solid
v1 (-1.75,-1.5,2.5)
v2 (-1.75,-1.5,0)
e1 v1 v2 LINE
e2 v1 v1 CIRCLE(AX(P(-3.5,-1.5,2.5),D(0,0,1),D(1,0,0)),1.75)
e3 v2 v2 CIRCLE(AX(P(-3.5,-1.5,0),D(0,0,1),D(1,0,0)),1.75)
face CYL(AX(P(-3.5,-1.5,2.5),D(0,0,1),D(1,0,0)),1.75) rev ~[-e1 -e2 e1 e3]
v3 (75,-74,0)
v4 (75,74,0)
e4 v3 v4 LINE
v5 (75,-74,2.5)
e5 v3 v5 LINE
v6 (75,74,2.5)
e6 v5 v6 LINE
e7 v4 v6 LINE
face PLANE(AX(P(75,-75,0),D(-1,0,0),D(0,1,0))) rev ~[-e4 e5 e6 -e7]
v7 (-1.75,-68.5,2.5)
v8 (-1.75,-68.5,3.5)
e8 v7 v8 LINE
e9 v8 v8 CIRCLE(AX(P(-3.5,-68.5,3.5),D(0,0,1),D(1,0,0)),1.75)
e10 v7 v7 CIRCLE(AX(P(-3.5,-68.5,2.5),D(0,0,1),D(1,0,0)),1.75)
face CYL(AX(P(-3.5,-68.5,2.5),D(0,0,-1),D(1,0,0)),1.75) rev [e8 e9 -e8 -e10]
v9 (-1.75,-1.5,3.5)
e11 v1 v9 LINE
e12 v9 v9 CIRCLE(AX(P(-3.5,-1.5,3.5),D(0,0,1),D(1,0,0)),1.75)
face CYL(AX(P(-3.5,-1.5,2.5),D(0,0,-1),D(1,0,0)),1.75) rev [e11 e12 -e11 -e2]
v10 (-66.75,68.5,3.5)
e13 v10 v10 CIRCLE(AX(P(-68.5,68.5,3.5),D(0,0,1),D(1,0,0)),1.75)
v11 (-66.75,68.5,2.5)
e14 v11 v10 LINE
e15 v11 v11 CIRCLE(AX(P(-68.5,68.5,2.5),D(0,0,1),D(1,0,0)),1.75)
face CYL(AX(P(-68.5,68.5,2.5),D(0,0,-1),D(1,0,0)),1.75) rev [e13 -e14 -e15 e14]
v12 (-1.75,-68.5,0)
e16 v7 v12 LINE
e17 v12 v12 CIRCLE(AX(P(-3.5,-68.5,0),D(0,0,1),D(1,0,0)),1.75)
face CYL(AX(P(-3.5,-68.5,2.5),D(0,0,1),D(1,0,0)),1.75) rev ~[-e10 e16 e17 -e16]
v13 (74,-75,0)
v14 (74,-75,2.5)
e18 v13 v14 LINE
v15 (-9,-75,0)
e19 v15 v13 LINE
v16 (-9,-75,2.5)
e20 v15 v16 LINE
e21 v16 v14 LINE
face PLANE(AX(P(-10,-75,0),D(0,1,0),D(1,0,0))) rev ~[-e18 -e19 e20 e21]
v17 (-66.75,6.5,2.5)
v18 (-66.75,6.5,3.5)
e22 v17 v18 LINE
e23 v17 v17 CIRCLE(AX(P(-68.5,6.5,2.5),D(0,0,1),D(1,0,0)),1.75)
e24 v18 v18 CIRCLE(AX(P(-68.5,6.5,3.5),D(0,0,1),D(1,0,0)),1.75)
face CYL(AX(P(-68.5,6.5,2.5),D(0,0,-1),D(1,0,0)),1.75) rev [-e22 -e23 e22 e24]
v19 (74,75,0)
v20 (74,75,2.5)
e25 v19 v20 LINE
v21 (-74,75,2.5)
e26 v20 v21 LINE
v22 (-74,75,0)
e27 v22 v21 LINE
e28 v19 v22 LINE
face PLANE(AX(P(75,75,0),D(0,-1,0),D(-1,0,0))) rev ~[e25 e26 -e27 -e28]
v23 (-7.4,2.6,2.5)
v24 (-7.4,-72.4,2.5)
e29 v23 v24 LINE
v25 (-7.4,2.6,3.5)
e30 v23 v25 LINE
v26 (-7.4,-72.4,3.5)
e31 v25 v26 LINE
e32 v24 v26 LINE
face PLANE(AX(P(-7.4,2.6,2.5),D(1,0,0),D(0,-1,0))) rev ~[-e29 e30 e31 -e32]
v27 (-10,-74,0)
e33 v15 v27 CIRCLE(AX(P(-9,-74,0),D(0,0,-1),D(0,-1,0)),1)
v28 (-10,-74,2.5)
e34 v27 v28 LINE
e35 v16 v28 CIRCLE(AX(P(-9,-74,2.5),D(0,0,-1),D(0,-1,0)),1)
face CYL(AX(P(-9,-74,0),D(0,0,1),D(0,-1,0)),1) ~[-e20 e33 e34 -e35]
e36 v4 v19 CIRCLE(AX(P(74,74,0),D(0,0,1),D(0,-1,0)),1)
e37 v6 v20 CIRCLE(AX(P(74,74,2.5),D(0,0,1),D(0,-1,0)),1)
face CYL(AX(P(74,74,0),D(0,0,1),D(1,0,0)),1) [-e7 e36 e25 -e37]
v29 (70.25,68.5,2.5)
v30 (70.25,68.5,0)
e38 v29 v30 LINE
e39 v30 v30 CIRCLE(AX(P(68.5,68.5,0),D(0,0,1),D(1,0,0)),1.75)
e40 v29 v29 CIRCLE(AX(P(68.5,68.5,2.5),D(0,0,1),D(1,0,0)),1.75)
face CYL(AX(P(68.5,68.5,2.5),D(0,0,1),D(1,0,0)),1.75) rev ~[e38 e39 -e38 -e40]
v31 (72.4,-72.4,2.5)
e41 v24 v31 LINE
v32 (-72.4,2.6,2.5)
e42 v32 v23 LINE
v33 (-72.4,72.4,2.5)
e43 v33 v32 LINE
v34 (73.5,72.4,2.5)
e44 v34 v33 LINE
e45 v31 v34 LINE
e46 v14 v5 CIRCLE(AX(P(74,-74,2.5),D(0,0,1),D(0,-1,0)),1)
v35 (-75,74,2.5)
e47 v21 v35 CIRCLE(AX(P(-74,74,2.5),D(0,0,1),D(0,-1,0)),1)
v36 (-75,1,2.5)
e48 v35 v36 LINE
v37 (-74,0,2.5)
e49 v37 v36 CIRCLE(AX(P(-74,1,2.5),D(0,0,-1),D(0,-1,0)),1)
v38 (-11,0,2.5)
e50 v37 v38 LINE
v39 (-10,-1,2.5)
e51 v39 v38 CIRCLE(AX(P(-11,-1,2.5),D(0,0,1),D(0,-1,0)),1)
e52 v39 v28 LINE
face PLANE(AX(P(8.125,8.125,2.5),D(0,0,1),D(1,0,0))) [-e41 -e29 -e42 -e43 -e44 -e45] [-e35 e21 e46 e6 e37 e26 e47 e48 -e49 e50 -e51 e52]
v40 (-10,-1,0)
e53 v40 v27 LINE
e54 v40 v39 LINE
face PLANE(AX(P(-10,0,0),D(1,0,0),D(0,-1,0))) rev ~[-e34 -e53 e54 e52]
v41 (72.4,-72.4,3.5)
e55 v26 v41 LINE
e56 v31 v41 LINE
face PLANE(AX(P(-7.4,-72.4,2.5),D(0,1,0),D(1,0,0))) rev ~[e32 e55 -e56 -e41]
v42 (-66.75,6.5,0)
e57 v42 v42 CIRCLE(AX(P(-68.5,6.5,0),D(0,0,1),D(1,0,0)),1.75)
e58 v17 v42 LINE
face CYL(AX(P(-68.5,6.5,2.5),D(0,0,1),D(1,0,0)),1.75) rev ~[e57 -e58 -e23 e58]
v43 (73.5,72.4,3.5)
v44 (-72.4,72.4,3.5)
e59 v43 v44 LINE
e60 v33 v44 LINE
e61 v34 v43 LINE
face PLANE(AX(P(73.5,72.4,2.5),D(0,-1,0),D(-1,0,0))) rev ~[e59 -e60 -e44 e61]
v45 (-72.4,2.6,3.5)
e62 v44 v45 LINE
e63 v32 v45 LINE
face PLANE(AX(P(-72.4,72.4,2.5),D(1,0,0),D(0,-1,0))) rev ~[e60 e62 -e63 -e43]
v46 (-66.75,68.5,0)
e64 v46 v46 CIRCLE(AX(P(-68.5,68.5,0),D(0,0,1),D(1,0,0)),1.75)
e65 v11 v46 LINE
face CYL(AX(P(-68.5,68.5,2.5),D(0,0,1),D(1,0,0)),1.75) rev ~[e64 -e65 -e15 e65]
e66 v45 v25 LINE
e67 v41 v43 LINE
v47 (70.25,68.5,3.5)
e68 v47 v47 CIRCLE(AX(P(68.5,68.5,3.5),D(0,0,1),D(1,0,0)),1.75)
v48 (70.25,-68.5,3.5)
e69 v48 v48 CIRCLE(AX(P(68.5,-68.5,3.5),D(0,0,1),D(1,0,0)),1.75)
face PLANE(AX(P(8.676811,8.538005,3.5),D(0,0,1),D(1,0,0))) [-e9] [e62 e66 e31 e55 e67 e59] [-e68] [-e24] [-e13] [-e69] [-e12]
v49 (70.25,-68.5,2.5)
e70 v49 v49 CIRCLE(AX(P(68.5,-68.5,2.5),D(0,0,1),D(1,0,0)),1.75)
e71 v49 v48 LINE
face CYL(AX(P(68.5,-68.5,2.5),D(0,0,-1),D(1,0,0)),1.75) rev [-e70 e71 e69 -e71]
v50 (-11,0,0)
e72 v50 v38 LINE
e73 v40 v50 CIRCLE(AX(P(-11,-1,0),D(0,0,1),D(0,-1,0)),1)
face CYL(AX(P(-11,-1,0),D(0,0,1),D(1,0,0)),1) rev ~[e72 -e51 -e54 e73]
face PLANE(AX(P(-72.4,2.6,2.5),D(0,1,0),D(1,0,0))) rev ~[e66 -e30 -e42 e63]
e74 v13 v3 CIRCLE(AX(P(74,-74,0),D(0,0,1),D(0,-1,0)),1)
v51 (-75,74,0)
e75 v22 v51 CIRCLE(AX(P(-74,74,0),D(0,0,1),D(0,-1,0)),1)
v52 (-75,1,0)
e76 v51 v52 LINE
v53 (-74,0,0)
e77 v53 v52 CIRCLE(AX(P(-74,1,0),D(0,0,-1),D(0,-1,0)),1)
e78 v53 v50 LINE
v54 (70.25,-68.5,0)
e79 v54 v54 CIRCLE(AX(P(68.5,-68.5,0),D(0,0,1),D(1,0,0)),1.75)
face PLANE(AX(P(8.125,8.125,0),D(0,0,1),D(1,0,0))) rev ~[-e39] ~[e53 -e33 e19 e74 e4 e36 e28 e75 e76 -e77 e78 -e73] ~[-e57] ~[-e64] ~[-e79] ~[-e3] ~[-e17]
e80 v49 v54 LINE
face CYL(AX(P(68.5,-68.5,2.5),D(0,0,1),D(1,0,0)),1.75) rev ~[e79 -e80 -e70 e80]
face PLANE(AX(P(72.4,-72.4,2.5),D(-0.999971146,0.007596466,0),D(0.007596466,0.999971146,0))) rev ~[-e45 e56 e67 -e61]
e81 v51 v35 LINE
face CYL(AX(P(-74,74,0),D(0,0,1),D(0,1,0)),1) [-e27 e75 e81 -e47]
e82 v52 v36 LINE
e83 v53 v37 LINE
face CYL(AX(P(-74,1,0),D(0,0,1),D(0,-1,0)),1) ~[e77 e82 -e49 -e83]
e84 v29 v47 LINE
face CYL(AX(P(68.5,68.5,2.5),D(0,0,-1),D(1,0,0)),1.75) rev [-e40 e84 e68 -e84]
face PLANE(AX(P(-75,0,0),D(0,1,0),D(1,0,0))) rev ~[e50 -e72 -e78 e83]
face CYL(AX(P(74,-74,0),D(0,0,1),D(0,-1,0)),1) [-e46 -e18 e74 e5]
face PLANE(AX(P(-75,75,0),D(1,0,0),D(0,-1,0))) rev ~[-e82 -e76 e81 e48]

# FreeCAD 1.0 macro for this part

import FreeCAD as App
import Part
import Sketcher
from FreeCAD import Vector
Q = App.Units.Quantity


def edges_at(feature, points):
    """Names of the edges that pass closest to the given points."""
    edges = feature.Shape.Edges
    near = lambda p: min(range(len(edges)), key=lambda i: edges[i].distToShape(Part.Vertex(*p))[0])
    return sorted({f"Edge{near(p) + 1}" for p in points})

doc = App.newDocument("Part")
body = doc.addObject("PartDesign::Body", "Body")

# Sketch on XY plane
sketch1 = doc.addObject("Sketcher::SketchObject", "Sketch")
body.addObject(sketch1)
sketch1.AttachmentSupport = (doc.XY_Plane, [""])
sketch1.MapMode = "FlatFace"
sketch1.addGeometry(Part.LineSegment(Vector(-10, -75, 0), Vector(75, -75, 0)), False)
sketch1.addGeometry(Part.LineSegment(Vector(75, -75, 0), Vector(75, 75, 0)), False)
sketch1.addGeometry(Part.LineSegment(Vector(75, 75, 0), Vector(-75, 75, 0)), False)
sketch1.addGeometry(Part.LineSegment(Vector(-75, 75, 0), Vector(-75, 0, 0)), False)
sketch1.addGeometry(Part.LineSegment(Vector(-75, 0, 0), Vector(-10, 0, 0)), False)
sketch1.addGeometry(Part.LineSegment(Vector(-10, 0, 0), Vector(-10, -75, 0)), False)
sketch1.addConstraint(Sketcher.Constraint("Coincident", 0, 2, 1, 1))
sketch1.addConstraint(Sketcher.Constraint("Coincident", 1, 2, 2, 1))
sketch1.addConstraint(Sketcher.Constraint("Coincident", 2, 2, 3, 1))
sketch1.addConstraint(Sketcher.Constraint("Coincident", 3, 2, 4, 1))
sketch1.addConstraint(Sketcher.Constraint("Coincident", 4, 2, 5, 1))
sketch1.addConstraint(Sketcher.Constraint("Coincident", 5, 2, 0, 1))
sketch1.addConstraint(Sketcher.Constraint("Horizontal", 0))
sketch1.addConstraint(Sketcher.Constraint("Vertical", 1))
sketch1.addConstraint(Sketcher.Constraint("Horizontal", 2))
sketch1.addConstraint(Sketcher.Constraint("Vertical", 3))
sketch1.addConstraint(Sketcher.Constraint("Horizontal", 4))
sketch1.addConstraint(Sketcher.Constraint("Vertical", 5))
sketch1.addConstraint(Sketcher.Constraint("Symmetric", 0, 2, 2, 2, -1, 1))
sketch1.addConstraint(Sketcher.Constraint("PointOnObject", 3, 2, -1))
sketch1.addConstraint(Sketcher.Constraint("Equal", 2, 1))
sketch1.addConstraint(Sketcher.Constraint("DistanceX", 0, 1, 0, 2, Q("85 mm")))
sketch1.addConstraint(Sketcher.Constraint("DistanceX", 2, 2, 2, 1, Q("150 mm")))
pad1 = doc.addObject("PartDesign::Pad", "Pad")
body.addObject(pad1)
pad1.Profile = sketch1
pad1.Length = 2.5

# Sketch on XY plane
sketch2 = doc.addObject("Sketcher::SketchObject", "Sketch001")
body.addObject(sketch2)
sketch2.AttachmentSupport = (doc.XY_Plane, [""])
sketch2.MapMode = "FlatFace"
sketch2.AttachmentOffset = App.Placement(Vector(0, 0, 2.5), App.Rotation())
sketch2.addGeometry(Part.Circle(Vector(-68.5, 68.5, 0), Vector(0, 0, 1), 1.8), False)
sketch2.addGeometry(Part.Circle(Vector(68.5, 68.5, 0), Vector(0, 0, 1), 1.8), False)
sketch2.addGeometry(Part.Circle(Vector(68.5, -68.5, 0), Vector(0, 0, 1), 1.8), False)
sketch2.addGeometry(Part.Circle(Vector(-3.5, -68.5, 0), Vector(0, 0, 1), 1.8), False)
sketch2.addGeometry(Part.Circle(Vector(-68.5, 6.5, 0), Vector(0, 0, 1), 1.8), False)
sketch2.addGeometry(Part.Circle(Vector(-3.5, -1.5, 0), Vector(0, 0, 1), 1.8), False)
sketch2.addConstraint(Sketcher.Constraint("Equal", 0, 1))
sketch2.addConstraint(Sketcher.Constraint("Equal", 1, 2))
sketch2.addConstraint(Sketcher.Constraint("Equal", 2, 3))
sketch2.addConstraint(Sketcher.Constraint("Equal", 3, 4))
sketch2.addConstraint(Sketcher.Constraint("Equal", 4, 5))
sketch2.addConstraint(Sketcher.Constraint("Symmetric", 0, 3, 2, 3, -1, 1))
sketch2.addConstraint(Sketcher.Constraint("Symmetric", 0, 3, 1, 3, -2))
sketch2.addConstraint(Sketcher.Constraint("Horizontal", 2, 3, 3, 3))
sketch2.addConstraint(Sketcher.Constraint("Vertical", 0, 3, 4, 3))
sketch2.addConstraint(Sketcher.Constraint("Vertical", 3, 3, 5, 3))
sketch2.addConstraint(Sketcher.Constraint("Diameter", 0, Q("3.5 mm")))
sketch2.addConstraint(Sketcher.Constraint("DistanceX", 0, 3, 1, 3, Q("137 mm")))
sketch2.addConstraint(Sketcher.Constraint("DistanceY", 2, 3, 1, 3, Q("137 mm")))
sketch2.addConstraint(Sketcher.Constraint("DistanceX", 3, 3, 2, 3, Q("72 mm")))
sketch2.addConstraint(Sketcher.Constraint("DistanceY", 4, 3, 0, 3, Q("62 mm")))
sketch2.addConstraint(Sketcher.Constraint("DistanceY", 5, 3, 4, 3, Q("8 mm")))
pocket1 = doc.addObject("PartDesign::Pocket", "Pocket")
body.addObject(pocket1)
pocket1.Profile = sketch2
pocket1.Length = 3.5

# Sketch on XY plane
sketch3 = doc.addObject("Sketcher::SketchObject", "Sketch002")
body.addObject(sketch3)
sketch3.AttachmentSupport = (doc.XY_Plane, [""])
sketch3.MapMode = "FlatFace"
sketch3.AttachmentOffset = App.Placement(Vector(0, 0, 2.5), App.Rotation())
sketch3.addGeometry(Part.LineSegment(Vector(73.5, 72.4, 0), Vector(-72.4, 72.4, 0)), False)
sketch3.addGeometry(Part.LineSegment(Vector(-72.4, 72.4, 0), Vector(-72.4, 2.6, 0)), False)
sketch3.addGeometry(Part.LineSegment(Vector(-72.4, 2.6, 0), Vector(-7.4, 2.6, 0)), False)
sketch3.addGeometry(Part.LineSegment(Vector(-7.4, 2.6, 0), Vector(-7.4, -72.4, 0)), False)
sketch3.addGeometry(Part.LineSegment(Vector(-7.4, -72.4, 0), Vector(72.4, -72.4, 0)), False)
sketch3.addGeometry(Part.LineSegment(Vector(72.4, -72.4, 0), Vector(73.5, 72.4, 0)), False)
sketch3.addGeometry(Part.Circle(Vector(-3.5, -68.5, 0), Vector(0, 0, 1), 1.8), False)
sketch3.addGeometry(Part.Circle(Vector(-3.5, -1.5, 0), Vector(0, 0, 1), 1.8), False)
sketch3.addGeometry(Part.Circle(Vector(68.5, -68.5, 0), Vector(0, 0, 1), 1.8), False)
sketch3.addGeometry(Part.Circle(Vector(-68.5, 6.5, 0), Vector(0, 0, 1), 1.8), False)
sketch3.addGeometry(Part.Circle(Vector(-68.5, 68.5, 0), Vector(0, 0, 1), 1.8), False)
sketch3.addGeometry(Part.Circle(Vector(68.5, 68.5, 0), Vector(0, 0, 1), 1.8), False)
sketch3.addConstraint(Sketcher.Constraint("Coincident", 0, 2, 1, 1))
sketch3.addConstraint(Sketcher.Constraint("Coincident", 1, 2, 2, 1))
sketch3.addConstraint(Sketcher.Constraint("Coincident", 2, 2, 3, 1))
sketch3.addConstraint(Sketcher.Constraint("Coincident", 3, 2, 4, 1))
sketch3.addConstraint(Sketcher.Constraint("Coincident", 4, 2, 5, 1))
sketch3.addConstraint(Sketcher.Constraint("Coincident", 5, 2, 0, 1))
sketch3.addConstraint(Sketcher.Constraint("Horizontal", 0))
sketch3.addConstraint(Sketcher.Constraint("Vertical", 1))
sketch3.addConstraint(Sketcher.Constraint("Horizontal", 2))
sketch3.addConstraint(Sketcher.Constraint("Vertical", 3))
sketch3.addConstraint(Sketcher.Constraint("Horizontal", 4))
sketch3.addConstraint(Sketcher.Constraint("Equal", 6, 7))
sketch3.addConstraint(Sketcher.Constraint("Equal", 7, 8))
sketch3.addConstraint(Sketcher.Constraint("Equal", 8, 9))
sketch3.addConstraint(Sketcher.Constraint("Equal", 9, 10))
sketch3.addConstraint(Sketcher.Constraint("Equal", 10, 11))
sketch3.addConstraint(Sketcher.Constraint("Symmetric", 8, 3, 10, 3, -1, 1))
sketch3.addConstraint(Sketcher.Constraint("Symmetric", 0, 2, 4, 2, -1, 1))
sketch3.addConstraint(Sketcher.Constraint("Symmetric", 10, 3, 11, 3, -2))
sketch3.addConstraint(Sketcher.Constraint("Horizontal", 6, 3, 8, 3))
sketch3.addConstraint(Sketcher.Constraint("Vertical", 6, 3, 7, 3))
sketch3.addConstraint(Sketcher.Constraint("Vertical", 9, 3, 10, 3))
sketch3.addConstraint(Sketcher.Constraint("Diameter", 6, Q("3.5 mm")))
sketch3.addConstraint(Sketcher.Constraint("DistanceX", 2, 1, 2, 2, Q("65 mm")))
sketch3.addConstraint(Sketcher.Constraint("DistanceY", 3, 2, 3, 1, Q("75 mm")))
sketch3.addConstraint(Sketcher.Constraint("DistanceX", 0, 2, 0, 1, Q("145.9 mm")))
sketch3.addConstraint(Sketcher.Constraint("DistanceX", 4, 1, 4, 2, Q("79.8 mm")))
sketch3.addConstraint(Sketcher.Constraint("DistanceY", 1, 2, 1, 1, Q("69.8 mm")))
sketch3.addConstraint(Sketcher.Constraint("DistanceY", 6, 3, 7, 3, Q("67 mm")))
sketch3.addConstraint(Sketcher.Constraint("DistanceX", 6, 3, 8, 3, Q("72 mm")))
sketch3.addConstraint(Sketcher.Constraint("DistanceX", 9, 3, 7, 3, Q("65 mm")))
sketch3.addConstraint(Sketcher.Constraint("DistanceY", 7, 3, 9, 3, Q("8 mm")))
sketch3.addConstraint(Sketcher.Constraint("DistanceY", 9, 3, 10, 3, Q("62 mm")))
pad2 = doc.addObject("PartDesign::Pad", "Pad001")
body.addObject(pad2)
pad2.Profile = sketch3
pad2.Length = 1
doc.recompute()

fillet = doc.addObject("PartDesign::Fillet", "Fillet")
body.addObject(fillet)
fillet.Base = (pad2, edges_at(pad2, [
    (-10, 0, 1.25),
    (-10, -75, 1.25),
    (75, -75, 1.25),
    (75, 75, 1.25),
    (-75, 75, 1.25),
    (-75, 0, 1.25),
]))
fillet.Radius = 1

doc.recompute()
